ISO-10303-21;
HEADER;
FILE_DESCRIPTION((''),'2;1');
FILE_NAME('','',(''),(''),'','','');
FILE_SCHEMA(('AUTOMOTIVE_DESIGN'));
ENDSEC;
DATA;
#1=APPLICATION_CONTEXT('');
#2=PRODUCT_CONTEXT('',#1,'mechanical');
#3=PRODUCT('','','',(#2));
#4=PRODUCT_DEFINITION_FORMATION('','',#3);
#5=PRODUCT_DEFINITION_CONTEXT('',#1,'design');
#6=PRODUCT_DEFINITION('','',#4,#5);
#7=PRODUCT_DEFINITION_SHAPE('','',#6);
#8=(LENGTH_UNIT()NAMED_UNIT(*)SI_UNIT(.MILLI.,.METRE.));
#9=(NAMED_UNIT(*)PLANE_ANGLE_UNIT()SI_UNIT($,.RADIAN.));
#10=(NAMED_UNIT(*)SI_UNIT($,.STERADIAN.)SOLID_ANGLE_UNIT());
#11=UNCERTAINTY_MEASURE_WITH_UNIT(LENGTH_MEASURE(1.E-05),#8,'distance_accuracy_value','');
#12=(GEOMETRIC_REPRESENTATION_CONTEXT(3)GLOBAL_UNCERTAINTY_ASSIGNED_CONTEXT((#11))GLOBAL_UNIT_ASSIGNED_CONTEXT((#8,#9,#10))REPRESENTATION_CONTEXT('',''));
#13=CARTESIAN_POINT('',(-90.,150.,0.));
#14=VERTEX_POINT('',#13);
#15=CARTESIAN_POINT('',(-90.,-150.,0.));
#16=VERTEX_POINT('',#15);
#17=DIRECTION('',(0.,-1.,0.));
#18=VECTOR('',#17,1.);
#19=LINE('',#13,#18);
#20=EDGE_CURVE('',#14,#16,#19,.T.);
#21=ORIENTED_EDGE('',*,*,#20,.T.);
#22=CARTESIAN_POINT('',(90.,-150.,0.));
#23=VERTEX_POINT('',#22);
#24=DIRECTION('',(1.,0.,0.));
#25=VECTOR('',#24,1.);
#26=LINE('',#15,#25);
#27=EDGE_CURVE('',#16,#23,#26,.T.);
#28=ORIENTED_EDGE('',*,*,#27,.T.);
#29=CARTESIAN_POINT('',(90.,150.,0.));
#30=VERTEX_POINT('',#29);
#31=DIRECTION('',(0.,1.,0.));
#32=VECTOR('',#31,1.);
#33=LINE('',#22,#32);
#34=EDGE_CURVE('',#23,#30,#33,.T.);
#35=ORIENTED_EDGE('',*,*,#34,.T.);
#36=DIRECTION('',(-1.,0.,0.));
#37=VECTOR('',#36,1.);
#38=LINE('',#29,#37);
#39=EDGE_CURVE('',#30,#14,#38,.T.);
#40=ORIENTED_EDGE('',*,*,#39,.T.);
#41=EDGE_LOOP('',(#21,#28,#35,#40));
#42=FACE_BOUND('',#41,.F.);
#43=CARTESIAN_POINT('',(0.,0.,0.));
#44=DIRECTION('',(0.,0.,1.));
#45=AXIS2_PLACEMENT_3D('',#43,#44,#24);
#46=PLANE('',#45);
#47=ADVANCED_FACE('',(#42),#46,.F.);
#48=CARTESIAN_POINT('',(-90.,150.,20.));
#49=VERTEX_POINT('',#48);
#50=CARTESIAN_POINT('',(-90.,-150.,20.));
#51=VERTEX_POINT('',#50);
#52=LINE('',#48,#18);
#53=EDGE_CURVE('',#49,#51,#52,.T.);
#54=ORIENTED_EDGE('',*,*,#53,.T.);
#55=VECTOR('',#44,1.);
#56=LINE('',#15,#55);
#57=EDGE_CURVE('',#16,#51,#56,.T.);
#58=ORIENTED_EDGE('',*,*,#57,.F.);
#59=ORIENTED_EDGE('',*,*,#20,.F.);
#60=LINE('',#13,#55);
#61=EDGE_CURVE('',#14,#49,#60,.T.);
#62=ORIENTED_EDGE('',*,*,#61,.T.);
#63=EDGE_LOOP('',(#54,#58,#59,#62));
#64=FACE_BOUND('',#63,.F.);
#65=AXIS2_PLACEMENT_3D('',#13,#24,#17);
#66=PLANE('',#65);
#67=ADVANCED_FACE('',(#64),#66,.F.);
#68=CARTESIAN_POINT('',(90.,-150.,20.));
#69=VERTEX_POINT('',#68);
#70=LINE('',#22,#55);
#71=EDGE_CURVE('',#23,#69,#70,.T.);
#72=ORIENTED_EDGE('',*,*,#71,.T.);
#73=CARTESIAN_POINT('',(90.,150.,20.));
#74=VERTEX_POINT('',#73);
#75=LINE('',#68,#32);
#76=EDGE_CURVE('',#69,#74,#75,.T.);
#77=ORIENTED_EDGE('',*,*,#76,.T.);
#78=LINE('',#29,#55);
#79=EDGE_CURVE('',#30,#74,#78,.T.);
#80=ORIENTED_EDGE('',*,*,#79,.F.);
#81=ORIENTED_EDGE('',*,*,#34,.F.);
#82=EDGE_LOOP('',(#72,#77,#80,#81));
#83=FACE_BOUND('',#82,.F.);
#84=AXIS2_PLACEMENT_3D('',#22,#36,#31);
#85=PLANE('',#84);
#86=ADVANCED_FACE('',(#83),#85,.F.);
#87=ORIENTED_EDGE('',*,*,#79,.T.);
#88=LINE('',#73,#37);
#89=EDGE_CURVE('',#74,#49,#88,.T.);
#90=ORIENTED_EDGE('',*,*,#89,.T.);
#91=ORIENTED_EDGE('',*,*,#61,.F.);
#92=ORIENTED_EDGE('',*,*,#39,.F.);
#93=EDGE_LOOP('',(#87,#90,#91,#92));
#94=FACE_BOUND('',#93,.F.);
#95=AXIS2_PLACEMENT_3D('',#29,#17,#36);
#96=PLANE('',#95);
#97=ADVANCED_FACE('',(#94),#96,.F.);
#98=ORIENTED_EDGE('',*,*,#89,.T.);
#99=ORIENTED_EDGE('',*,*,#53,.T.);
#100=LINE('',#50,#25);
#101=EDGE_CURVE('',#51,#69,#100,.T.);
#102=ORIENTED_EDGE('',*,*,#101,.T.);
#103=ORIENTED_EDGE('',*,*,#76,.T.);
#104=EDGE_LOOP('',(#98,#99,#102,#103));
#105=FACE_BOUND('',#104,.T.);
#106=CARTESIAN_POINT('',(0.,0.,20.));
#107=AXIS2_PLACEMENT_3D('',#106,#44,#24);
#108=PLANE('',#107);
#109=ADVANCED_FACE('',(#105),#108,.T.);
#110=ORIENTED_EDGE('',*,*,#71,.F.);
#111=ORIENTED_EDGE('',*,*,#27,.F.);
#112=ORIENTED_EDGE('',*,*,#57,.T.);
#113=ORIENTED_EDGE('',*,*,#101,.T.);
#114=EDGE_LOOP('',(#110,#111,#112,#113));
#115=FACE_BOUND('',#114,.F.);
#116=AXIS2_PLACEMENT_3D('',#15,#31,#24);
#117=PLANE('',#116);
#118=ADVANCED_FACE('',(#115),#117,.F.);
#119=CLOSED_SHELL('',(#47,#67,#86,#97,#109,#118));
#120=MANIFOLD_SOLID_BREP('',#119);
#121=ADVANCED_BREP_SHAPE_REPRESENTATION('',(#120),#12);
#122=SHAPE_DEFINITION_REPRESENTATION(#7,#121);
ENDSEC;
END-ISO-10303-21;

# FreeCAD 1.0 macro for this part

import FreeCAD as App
import Part
import Sketcher
from FreeCAD import Vector

doc = App.newDocument("Part")
body = doc.addObject("PartDesign::Body", "Body")

sketch1 = body.newObject("Sketcher::SketchObject", "Sketch")
sketch1.AttachmentSupport = (doc.getObject("XY_Plane"), [""])
sketch1.MapMode = "FlatFace"
sketch1.addGeometry([
    Part.LineSegment(Vector(-90, 150, 0), Vector(-90, -150, 0)),
    Part.LineSegment(Vector(-90, -150, 0), Vector(90, -150, 0)),
    Part.LineSegment(Vector(90, -150, 0), Vector(90, 150, 0)),
    Part.LineSegment(Vector(90, 150, 0), Vector(-90, 150, 0)),
], False)
sketch1.addConstraint([
    Sketcher.Constraint("Coincident", 0, 2, 1, 1),
    Sketcher.Constraint("Coincident", 1, 2, 2, 1),
    Sketcher.Constraint("Coincident", 2, 2, 3, 1),
    Sketcher.Constraint("Coincident", 3, 2, 0, 1),
    Sketcher.Constraint("Vertical", 0),
    Sketcher.Constraint("Horizontal", 1),
    Sketcher.Constraint("Vertical", 2),
    Sketcher.Constraint("Horizontal", 3),
    Sketcher.Constraint("Symmetric", 0, 2, 2, 2, -1, 1),
    Sketcher.Constraint("DistanceX", 1, 1, 1, 2, 180.0),
    Sketcher.Constraint("DistanceY", 0, 2, 0, 1, 300.0),
])
pad1 = body.newObject("PartDesign::Pad", "Pad")
pad1.Profile = sketch1
pad1.Length = 20

doc.recompute()
